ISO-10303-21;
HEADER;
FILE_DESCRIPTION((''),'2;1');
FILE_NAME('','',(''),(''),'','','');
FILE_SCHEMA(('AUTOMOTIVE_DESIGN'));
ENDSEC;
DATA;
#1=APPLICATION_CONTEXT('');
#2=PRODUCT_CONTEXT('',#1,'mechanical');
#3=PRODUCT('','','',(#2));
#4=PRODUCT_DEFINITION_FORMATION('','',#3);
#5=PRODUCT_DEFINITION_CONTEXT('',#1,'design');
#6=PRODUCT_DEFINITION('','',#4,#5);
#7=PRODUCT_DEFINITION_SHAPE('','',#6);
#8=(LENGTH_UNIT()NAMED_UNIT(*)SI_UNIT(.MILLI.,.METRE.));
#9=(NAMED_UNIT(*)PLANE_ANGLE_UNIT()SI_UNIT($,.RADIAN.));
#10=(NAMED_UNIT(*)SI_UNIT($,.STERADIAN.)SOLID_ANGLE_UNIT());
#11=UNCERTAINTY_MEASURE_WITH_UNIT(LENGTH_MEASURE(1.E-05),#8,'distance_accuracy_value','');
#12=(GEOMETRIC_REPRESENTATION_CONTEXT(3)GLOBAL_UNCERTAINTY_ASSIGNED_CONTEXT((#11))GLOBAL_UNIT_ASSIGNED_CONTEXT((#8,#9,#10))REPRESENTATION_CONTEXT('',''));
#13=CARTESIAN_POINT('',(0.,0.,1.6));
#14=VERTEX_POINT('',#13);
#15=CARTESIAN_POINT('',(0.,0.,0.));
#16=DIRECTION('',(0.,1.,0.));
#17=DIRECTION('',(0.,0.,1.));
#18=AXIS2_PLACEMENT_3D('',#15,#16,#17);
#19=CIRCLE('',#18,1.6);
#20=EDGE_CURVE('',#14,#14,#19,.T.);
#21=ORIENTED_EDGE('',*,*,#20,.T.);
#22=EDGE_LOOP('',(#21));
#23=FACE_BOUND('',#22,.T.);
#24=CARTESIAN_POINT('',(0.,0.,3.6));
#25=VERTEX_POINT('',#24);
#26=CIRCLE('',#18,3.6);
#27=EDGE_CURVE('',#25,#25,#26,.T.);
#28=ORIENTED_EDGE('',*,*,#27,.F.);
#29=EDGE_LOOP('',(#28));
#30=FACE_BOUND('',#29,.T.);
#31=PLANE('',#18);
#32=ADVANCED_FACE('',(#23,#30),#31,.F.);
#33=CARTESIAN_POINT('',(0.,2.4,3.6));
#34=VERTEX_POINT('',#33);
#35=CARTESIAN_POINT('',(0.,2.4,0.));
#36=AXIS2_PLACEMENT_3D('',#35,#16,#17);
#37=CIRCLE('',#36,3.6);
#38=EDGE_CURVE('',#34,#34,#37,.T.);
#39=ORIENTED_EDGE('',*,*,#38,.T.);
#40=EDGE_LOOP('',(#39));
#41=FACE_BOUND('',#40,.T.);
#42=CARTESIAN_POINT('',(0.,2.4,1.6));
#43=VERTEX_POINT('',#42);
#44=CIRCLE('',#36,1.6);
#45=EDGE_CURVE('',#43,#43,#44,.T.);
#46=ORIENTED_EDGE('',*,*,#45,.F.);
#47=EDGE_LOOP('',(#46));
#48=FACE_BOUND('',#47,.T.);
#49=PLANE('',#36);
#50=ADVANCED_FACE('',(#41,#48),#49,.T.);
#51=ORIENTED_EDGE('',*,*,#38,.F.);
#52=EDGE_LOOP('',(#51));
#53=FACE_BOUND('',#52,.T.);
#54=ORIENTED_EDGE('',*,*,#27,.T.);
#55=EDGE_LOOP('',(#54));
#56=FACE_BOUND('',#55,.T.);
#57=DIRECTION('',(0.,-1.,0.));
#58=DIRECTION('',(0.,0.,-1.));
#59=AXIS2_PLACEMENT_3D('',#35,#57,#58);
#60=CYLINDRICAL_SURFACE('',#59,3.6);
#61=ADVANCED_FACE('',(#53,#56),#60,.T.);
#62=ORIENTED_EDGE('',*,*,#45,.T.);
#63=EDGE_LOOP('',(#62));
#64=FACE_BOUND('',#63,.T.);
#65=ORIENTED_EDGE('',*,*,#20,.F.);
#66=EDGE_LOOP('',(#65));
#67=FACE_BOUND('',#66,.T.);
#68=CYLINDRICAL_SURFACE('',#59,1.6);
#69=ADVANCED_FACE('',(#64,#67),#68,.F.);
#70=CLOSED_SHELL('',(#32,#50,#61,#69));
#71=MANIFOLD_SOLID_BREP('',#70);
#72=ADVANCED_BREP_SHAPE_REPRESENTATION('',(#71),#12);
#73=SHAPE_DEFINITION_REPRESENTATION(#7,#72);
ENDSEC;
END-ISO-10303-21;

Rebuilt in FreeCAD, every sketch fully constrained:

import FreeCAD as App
import Part
import Sketcher
Q = App.Units.Quantity

doc = App.newDocument("Part")
body = doc.addObject("PartDesign::Body", "Body")

sketch1 = body.newObject("Sketcher::SketchObject", "Sketch")
sketch1.AttachmentSupport = (doc.getObject("XZ_Plane"), [""])
sketch1.MapMode = "FlatFace"
sketch1.addGeometry([
    Part.Circle(App.Vector(0, 0, 0), App.Vector(0, 0, 1), 3.6),
    Part.Circle(App.Vector(0, 0, 0), App.Vector(0, 0, 1), 1.6),
], False)
sketch1.addConstraint([
    Sketcher.Constraint("Coincident", 0, 3, -1, 1),
    Sketcher.Constraint("Coincident", 1, 3, -1, 1),
    Sketcher.Constraint("Diameter", 0, Q("7.2 mm")),
    Sketcher.Constraint("Diameter", 1, Q("3.2 mm")),
])
pad1 = body.newObject("PartDesign::Pad", "Pad")
pad1.Profile = sketch1
pad1.Length = 2.4
pad1.Reversed = True

doc.recompute()
